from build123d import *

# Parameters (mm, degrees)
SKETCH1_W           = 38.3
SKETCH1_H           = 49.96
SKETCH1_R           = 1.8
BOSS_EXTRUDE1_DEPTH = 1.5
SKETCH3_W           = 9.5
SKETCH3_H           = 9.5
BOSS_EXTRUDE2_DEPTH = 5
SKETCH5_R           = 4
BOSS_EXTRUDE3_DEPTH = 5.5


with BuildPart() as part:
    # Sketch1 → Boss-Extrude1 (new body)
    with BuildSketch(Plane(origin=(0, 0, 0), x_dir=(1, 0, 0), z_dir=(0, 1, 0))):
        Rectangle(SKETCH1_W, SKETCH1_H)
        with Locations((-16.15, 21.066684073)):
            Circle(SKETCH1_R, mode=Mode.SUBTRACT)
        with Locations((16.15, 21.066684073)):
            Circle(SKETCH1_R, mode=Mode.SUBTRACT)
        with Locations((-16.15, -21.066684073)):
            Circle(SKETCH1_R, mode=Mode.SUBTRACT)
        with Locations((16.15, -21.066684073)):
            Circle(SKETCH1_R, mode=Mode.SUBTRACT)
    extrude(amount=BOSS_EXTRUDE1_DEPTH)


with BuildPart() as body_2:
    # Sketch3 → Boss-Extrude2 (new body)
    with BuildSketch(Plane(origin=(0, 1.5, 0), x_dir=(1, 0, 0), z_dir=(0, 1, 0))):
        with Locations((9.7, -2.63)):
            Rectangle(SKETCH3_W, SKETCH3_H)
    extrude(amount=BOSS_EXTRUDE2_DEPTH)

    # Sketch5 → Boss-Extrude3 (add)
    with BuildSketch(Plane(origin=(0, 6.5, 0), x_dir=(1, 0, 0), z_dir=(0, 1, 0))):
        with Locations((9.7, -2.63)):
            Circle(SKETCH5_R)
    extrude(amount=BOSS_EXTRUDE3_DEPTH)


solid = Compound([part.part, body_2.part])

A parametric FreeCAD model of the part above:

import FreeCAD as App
import Part
import Sketcher

V = App.Vector
Q = App.Units.Quantity

doc = App.newDocument("Part")
body = doc.addObject("PartDesign::Body", "Body")

# Sketch on XZ plane
sketch1 = doc.addObject("Sketcher::SketchObject", "Sketch")
body.addObject(sketch1)
sketch1.AttachmentSupport = (doc.XZ_Plane, [""])
sketch1.MapMode = "FlatFace"
sketch1.addGeometry([
    Part.LineSegment(V(-19.1, -25, 0), V(-19.1, 25, 0)),  # 0
    Part.LineSegment(V(-19.1, 25, 0), V(19.1, 25, 0)),  # 1
    Part.LineSegment(V(19.1, 25, 0), V(19.1, -25, 0)),  # 2
    Part.LineSegment(V(19.1, -25, 0), V(-19.1, -25, 0)),  # 3
    Part.Circle(V(-16.1, 21.1, 0), V(0, 0, 1), 1.8),  # 4
    Part.Circle(V(16.1, 21.1, 0), V(0, 0, 1), 1.8),  # 5
    Part.Circle(V(-16.1, -21.1, 0), V(0, 0, 1), 1.8),  # 6
    Part.Circle(V(16.1, -21.1, 0), V(0, 0, 1), 1.8),  # 7
], False)
sketch1.addConstraint([
    Sketcher.Constraint("Coincident", 0, 2, 1, 1),
    Sketcher.Constraint("Coincident", 1, 2, 2, 1),
    Sketcher.Constraint("Coincident", 2, 2, 3, 1),
    Sketcher.Constraint("Coincident", 3, 2, 0, 1),
    Sketcher.Constraint("Vertical", 0),
    Sketcher.Constraint("Horizontal", 1),
    Sketcher.Constraint("Vertical", 2),
    Sketcher.Constraint("Horizontal", 3),
    Sketcher.Constraint("Equal", 4, 5),
    Sketcher.Constraint("Equal", 5, 6),
    Sketcher.Constraint("Equal", 6, 7),
    Sketcher.Constraint("Symmetric", 5, 3, 6, 3, -1, 1),
    Sketcher.Constraint("Symmetric", 4, 3, 7, 3, -1, 1),
    Sketcher.Constraint("Symmetric", 0, 2, 2, 2, -1, 1),
    Sketcher.Constraint("Symmetric", 4, 3, 5, 3, -2),
    Sketcher.Constraint("Diameter", 4, Q("3.6 mm")),
    Sketcher.Constraint("DistanceX", 1, 1, 1, 2, Q("38.3 mm")),
    Sketcher.Constraint("DistanceX", 0, 2, 4, 3, Q("3 mm")),
    Sketcher.Constraint("DistanceY", 0, 1, 0, 2, Q("49.96 mm")),
    Sketcher.Constraint("DistanceY", 6, 3, 4, 3, Q("42.133368 mm")),
])
pad1 = doc.addObject("PartDesign::Pad", "Pad")
body.addObject(pad1)
pad1.Profile = sketch1
pad1.Length = 1.5
pad1.Reversed = True
body2 = doc.addObject("PartDesign::Body", "Body001")

# Sketch on XZ plane
sketch2 = doc.addObject("Sketcher::SketchObject", "Sketch001")
body2.addObject(sketch2)
sketch2.AttachmentSupport = (doc.getObject("XZ_Plane001"), [""])
sketch2.MapMode = "FlatFace"
sketch2.AttachmentOffset = App.Placement(V(0, 0, -1.5), App.Rotation())
sketch2.addGeometry([
    Part.LineSegment(V(5, -2, 0), V(5, 7, 0)),
    Part.LineSegment(V(5, 7, 0), V(14, 7, 0)),
    Part.LineSegment(V(14, 7, 0), V(14, -2, 0)),
    Part.LineSegment(V(14, -2, 0), V(5, -2, 0)),
], False)
sketch2.addConstraint([
    Sketcher.Constraint("Coincident", 0, 2, 1, 1),
    Sketcher.Constraint("Coincident", 1, 2, 2, 1),
    Sketcher.Constraint("Coincident", 2, 2, 3, 1),
    Sketcher.Constraint("Coincident", 3, 2, 0, 1),
    Sketcher.Constraint("Vertical", 0),
    Sketcher.Constraint("Horizontal", 1),
    Sketcher.Constraint("Vertical", 2),
    Sketcher.Constraint("Horizontal", 3),
    Sketcher.Constraint("Equal", 3, 0),
    Sketcher.Constraint("DistanceX", 1, 1, 1, 2, Q("9.5 mm")),
    Sketcher.Constraint("DistanceX", -1, 1, 0, 2, Q("4.95 mm")),
    Sketcher.Constraint("DistanceY", -1, 1, 0, 2, Q("7.38 mm")),
])
pad2 = doc.addObject("PartDesign::Pad", "Pad001")
body2.addObject(pad2)
pad2.Profile = sketch2
pad2.Length = 5
pad2.Reversed = True

# Sketch on XZ plane
sketch3 = doc.addObject("Sketcher::SketchObject", "Sketch002")
body2.addObject(sketch3)
sketch3.AttachmentSupport = (doc.getObject("XZ_Plane001"), [""])
sketch3.MapMode = "FlatFace"
sketch3.AttachmentOffset = App.Placement(V(0, 0, -6.5), App.Rotation())
sketch3.addGeometry(Part.Circle(V(9.7, 2.6, 0), V(0, 0, 1), 4), False)
sketch3.addConstraint([
    Sketcher.Constraint("Diameter", 0, Q("8 mm")),
    Sketcher.Constraint("DistanceX", -1, 1, 0, 3, Q("9.7 mm")),
    Sketcher.Constraint("DistanceY", -1, 1, 0, 3, Q("2.63 mm")),
])
pad3 = doc.addObject("PartDesign::Pad", "Pad002")
body2.addObject(pad3)
pad3.Profile = sketch3
pad3.Length = 5.5
pad3.Reversed = True

doc.recompute()
